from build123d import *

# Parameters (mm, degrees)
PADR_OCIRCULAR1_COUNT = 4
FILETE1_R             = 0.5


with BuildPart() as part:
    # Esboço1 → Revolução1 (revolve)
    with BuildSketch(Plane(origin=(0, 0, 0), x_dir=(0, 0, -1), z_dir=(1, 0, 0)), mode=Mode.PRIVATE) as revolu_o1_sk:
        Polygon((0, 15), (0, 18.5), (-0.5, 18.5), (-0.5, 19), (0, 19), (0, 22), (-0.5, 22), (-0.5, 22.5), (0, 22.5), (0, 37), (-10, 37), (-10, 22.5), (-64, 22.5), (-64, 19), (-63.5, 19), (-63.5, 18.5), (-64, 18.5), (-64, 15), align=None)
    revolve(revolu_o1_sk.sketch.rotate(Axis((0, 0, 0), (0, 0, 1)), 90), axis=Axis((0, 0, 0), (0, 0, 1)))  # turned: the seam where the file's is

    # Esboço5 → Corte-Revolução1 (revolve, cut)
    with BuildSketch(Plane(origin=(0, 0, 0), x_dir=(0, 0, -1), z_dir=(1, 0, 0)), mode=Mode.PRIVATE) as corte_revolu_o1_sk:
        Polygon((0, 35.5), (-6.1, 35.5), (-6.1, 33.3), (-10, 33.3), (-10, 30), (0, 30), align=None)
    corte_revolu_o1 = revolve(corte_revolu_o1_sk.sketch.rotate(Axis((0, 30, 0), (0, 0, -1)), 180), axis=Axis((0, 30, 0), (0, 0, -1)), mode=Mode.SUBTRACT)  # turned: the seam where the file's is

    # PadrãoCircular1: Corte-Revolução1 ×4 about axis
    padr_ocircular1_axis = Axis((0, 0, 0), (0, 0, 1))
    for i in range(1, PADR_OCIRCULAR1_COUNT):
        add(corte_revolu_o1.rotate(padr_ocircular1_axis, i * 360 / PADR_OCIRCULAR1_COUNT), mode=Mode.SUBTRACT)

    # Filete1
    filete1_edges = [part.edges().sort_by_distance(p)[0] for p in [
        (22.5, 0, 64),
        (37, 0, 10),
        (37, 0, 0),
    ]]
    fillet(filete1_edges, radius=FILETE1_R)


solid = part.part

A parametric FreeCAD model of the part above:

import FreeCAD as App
import Part
import Sketcher


def edges_at(feature, points):
    """Names of the edges that pass closest to the given points."""
    edges = feature.Shape.Edges
    near = lambda p: min(range(len(edges)), key=lambda i: edges[i].distToShape(Part.Vertex(*p))[0])
    return sorted({f"Edge{near(p) + 1}" for p in points})

doc = App.newDocument("Part")
body = doc.addObject("PartDesign::Body", "Body")

sketch1 = body.newObject("Sketcher::SketchObject", "Sketch")
sketch1.AttachmentSupport = (doc.getObject("YZ_Plane"), [""])
sketch1.MapMode = "FlatFace"
sketch1.addGeometry([
    Part.LineSegment(App.Vector(15, 0, 0), App.Vector(18.5, 0, 0)),
    Part.LineSegment(App.Vector(18.5, 0, 0), App.Vector(18.5, 0.5, 0)),
    Part.LineSegment(App.Vector(18.5, 0.5, 0), App.Vector(19, 0.5, 0)),
    Part.LineSegment(App.Vector(19, 0.5, 0), App.Vector(19, 0, 0)),
    Part.LineSegment(App.Vector(19, 0, 0), App.Vector(22, 0, 0)),
    Part.LineSegment(App.Vector(22, 0, 0), App.Vector(22, 0.5, 0)),
    Part.LineSegment(App.Vector(22, 0.5, 0), App.Vector(22.5, 0.5, 0)),
    Part.LineSegment(App.Vector(22.5, 0.5, 0), App.Vector(22.5, 0, 0)),
    Part.LineSegment(App.Vector(22.5, 0, 0), App.Vector(37, 0, 0)),
    Part.LineSegment(App.Vector(37, 0, 0), App.Vector(37, 10, 0)),
    Part.LineSegment(App.Vector(37, 10, 0), App.Vector(22.5, 10, 0)),
    Part.LineSegment(App.Vector(22.5, 10, 0), App.Vector(22.5, 64, 0)),
    Part.LineSegment(App.Vector(22.5, 64, 0), App.Vector(19, 64, 0)),
    Part.LineSegment(App.Vector(19, 64, 0), App.Vector(19, 63.5, 0)),
    Part.LineSegment(App.Vector(19, 63.5, 0), App.Vector(18.5, 63.5, 0)),
    Part.LineSegment(App.Vector(18.5, 63.5, 0), App.Vector(18.5, 64, 0)),
    Part.LineSegment(App.Vector(18.5, 64, 0), App.Vector(15, 64, 0)),
    Part.LineSegment(App.Vector(15, 64, 0), App.Vector(15, 0, 0)),
], False)
sketch1.addConstraint([
    Sketcher.Constraint("Coincident", 0, 2, 1, 1),
    Sketcher.Constraint("Coincident", 1, 2, 2, 1),
    Sketcher.Constraint("Coincident", 2, 2, 3, 1),
    Sketcher.Constraint("Coincident", 3, 2, 4, 1),
    Sketcher.Constraint("Coincident", 4, 2, 5, 1),
    Sketcher.Constraint("Coincident", 5, 2, 6, 1),
    Sketcher.Constraint("Coincident", 6, 2, 7, 1),
    Sketcher.Constraint("Coincident", 7, 2, 8, 1),
    Sketcher.Constraint("Coincident", 8, 2, 9, 1),
    Sketcher.Constraint("Coincident", 9, 2, 10, 1),
    Sketcher.Constraint("Coincident", 10, 2, 11, 1),
    Sketcher.Constraint("Coincident", 11, 2, 12, 1),
    Sketcher.Constraint("Coincident", 12, 2, 13, 1),
    Sketcher.Constraint("Coincident", 13, 2, 14, 1),
    Sketcher.Constraint("Coincident", 14, 2, 15, 1),
    Sketcher.Constraint("Coincident", 15, 2, 16, 1),
    Sketcher.Constraint("Coincident", 16, 2, 17, 1),
    Sketcher.Constraint("Coincident", 17, 2, 0, 1),
    Sketcher.Constraint("Horizontal", 0),
    Sketcher.Constraint("Vertical", 1),
    Sketcher.Constraint("Horizontal", 2),
    Sketcher.Constraint("Vertical", 3),
    Sketcher.Constraint("Horizontal", 4),
    Sketcher.Constraint("Vertical", 5),
    Sketcher.Constraint("Horizontal", 6),
    Sketcher.Constraint("Vertical", 7),
    Sketcher.Constraint("Horizontal", 8),
    Sketcher.Constraint("Vertical", 9),
    Sketcher.Constraint("Horizontal", 10),
    Sketcher.Constraint("Vertical", 11),
    Sketcher.Constraint("Horizontal", 12),
    Sketcher.Constraint("Vertical", 13),
    Sketcher.Constraint("Horizontal", 14),
    Sketcher.Constraint("Vertical", 15),
    Sketcher.Constraint("Horizontal", 16),
    Sketcher.Constraint("Vertical", 17),
    Sketcher.Constraint("PointOnObject", 0, 2, -1),
    Sketcher.Constraint("PointOnObject", 3, 2, -1),
    Sketcher.Constraint("PointOnObject", 7, 2, -1),
    Sketcher.Constraint("Horizontal", 2, 2, 5, 2),
    Sketcher.Constraint("Horizontal", 12, 2, 15, 2),
    Sketcher.Constraint("Vertical", 7, 2, 10, 2),
    Sketcher.Constraint("Vertical", 3, 2, 12, 2),
    Sketcher.Constraint("Vertical", 1, 2, 14, 2),
    Sketcher.Constraint("Equal", 2, 6),
    Sketcher.Constraint("Equal", 0, 12),
    Sketcher.Constraint("Equal", 14, 1),
    Sketcher.Constraint("Equal", 7, 13),
    Sketcher.Constraint("DistanceX", 4, 1, 4, 2, 3.0),
    Sketcher.Constraint("DistanceY", 9, 1, 9, 2, 10.0),
    Sketcher.Constraint("DistanceY", 11, 1, 11, 2, 54.0),
    Sketcher.Constraint("DistanceX", 0, 1, 0, 2, 3.5),
    Sketcher.Constraint("DistanceX", 8, 1, 8, 2, 14.5),
    Sketcher.Constraint("DistanceX", -1, 1, 2, 2, 19.0),
])
revolution = body.newObject("PartDesign::Revolution", "Revolution")
revolution.Profile = sketch1
revolution.ReferenceAxis = (sketch1, ["V_Axis"])
revolution.Angle = 360

sketch2 = body.newObject("Sketcher::SketchObject", "Sketch001")
sketch2.AttachmentSupport = (doc.getObject("YZ_Plane"), [""])
sketch2.MapMode = "FlatFace"
sketch2.addGeometry([
    Part.LineSegment(App.Vector(35.5, 0, 0), App.Vector(35.5, 6.1, 0)),
    Part.LineSegment(App.Vector(35.5, 6.1, 0), App.Vector(33.3, 6.1, 0)),
    Part.LineSegment(App.Vector(33.3, 6.1, 0), App.Vector(33.3, 10, 0)),
    Part.LineSegment(App.Vector(33.3, 10, 0), App.Vector(30, 10, 0)),
    Part.LineSegment(App.Vector(30, 10, 0), App.Vector(30, 0, 0)),
    Part.LineSegment(App.Vector(30, 0, 0), App.Vector(35.5, 0, 0)),
], False)
sketch2.addGeometry(Part.LineSegment(App.Vector(30, 10, 0), App.Vector(30, 0, 0)), True)
sketch2.addConstraint([
    Sketcher.Constraint("Coincident", 0, 2, 1, 1),
    Sketcher.Constraint("Coincident", 1, 2, 2, 1),
    Sketcher.Constraint("Coincident", 2, 2, 3, 1),
    Sketcher.Constraint("Coincident", 3, 2, 4, 1),
    Sketcher.Constraint("Coincident", 4, 2, 5, 1),
    Sketcher.Constraint("Coincident", 5, 2, 0, 1),
    Sketcher.Constraint("Vertical", 0),
    Sketcher.Constraint("Horizontal", 1),
    Sketcher.Constraint("Vertical", 2),
    Sketcher.Constraint("Horizontal", 3),
    Sketcher.Constraint("Vertical", 4),
    Sketcher.Constraint("Horizontal", 5),
    Sketcher.Constraint("Vertical", 6),
    Sketcher.Constraint("Coincident", 6, 1, 3, 2),
    Sketcher.Constraint("PointOnObject", 4, 2, -1),
    Sketcher.Constraint("PointOnObject", 6, 2, -1),
    Sketcher.Constraint("DistanceY", 4, 2, 4, 1, 10.0),
    Sketcher.Constraint("DistanceX", 1, 2, 1, 1, 2.2),
    Sketcher.Constraint("DistanceX", 3, 2, 3, 1, 3.3),
    Sketcher.Constraint("DistanceY", 0, 1, 0, 2, 6.1),
    Sketcher.Constraint("DistanceX", -1, 1, 3, 2, 30.0),
])
groove = body.newObject("PartDesign::Groove", "Groove")
groove.Profile = sketch2
groove.ReferenceAxis = (sketch2, ["Axis0"])
groove.Angle = 360
doc.recompute()

polarpattern = body.newObject("PartDesign::PolarPattern", "PolarPattern")
polarpattern.Originals = [groove]
polarpattern.Axis = (doc.getObject("Z_Axis"), [""])
polarpattern.Angle = 360
polarpattern.Occurrences = 4
body.Tip = polarpattern
doc.recompute()

fillet = body.newObject("PartDesign::Fillet", "Fillet")
fillet.Base = (polarpattern, edges_at(polarpattern, [(22.5, 0, 64), (37, 0, 10), (37, 0, 0)]))
fillet.Radius = 0.5

doc.recompute()
